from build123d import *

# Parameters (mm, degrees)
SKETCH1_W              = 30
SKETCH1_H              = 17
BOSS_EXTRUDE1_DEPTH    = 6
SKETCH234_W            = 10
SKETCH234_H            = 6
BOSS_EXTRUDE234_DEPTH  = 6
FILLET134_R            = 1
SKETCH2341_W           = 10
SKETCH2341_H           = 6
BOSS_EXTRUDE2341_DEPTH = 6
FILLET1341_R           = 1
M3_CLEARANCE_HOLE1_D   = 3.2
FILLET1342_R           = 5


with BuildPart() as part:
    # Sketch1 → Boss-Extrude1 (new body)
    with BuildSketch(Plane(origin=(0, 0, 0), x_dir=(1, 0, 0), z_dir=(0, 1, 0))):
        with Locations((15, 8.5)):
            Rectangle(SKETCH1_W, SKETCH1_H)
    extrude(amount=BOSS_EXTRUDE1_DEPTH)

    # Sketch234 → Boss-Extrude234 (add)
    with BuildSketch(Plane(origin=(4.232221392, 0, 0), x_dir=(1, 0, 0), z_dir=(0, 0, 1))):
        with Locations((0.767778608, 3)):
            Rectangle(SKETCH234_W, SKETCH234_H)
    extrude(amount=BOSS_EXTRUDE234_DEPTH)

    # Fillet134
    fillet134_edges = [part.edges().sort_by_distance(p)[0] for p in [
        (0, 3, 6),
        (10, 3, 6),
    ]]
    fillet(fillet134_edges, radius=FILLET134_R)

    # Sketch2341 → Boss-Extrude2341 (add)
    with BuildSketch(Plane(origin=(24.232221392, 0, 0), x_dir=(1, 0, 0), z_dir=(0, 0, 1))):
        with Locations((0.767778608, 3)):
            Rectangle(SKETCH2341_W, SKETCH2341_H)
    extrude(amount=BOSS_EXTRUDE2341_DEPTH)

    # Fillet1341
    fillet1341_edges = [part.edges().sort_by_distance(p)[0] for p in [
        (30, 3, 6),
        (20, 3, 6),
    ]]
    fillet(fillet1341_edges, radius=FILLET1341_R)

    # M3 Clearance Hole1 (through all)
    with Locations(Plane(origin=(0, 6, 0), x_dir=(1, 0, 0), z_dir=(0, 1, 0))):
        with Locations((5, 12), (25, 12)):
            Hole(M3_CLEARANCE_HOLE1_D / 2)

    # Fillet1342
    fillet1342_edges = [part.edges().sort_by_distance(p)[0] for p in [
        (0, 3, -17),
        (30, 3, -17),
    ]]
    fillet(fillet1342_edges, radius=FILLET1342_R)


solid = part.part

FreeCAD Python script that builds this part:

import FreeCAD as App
import Part
import Sketcher
from FreeCAD import Vector


def edges_at(feature, points):
    """Names of the edges that pass closest to the given points."""
    edges = feature.Shape.Edges
    near = lambda p: min(range(len(edges)), key=lambda i: edges[i].distToShape(Part.Vertex(*p))[0])
    return sorted({f"Edge{near(p) + 1}" for p in points})

doc = App.newDocument("Part")
params = doc.addObject("Spreadsheet::Sheet", "Params")
for row, (alias, value) in enumerate([
    ("sketch1_width", "30 mm"),
    ("sketch1_height", "17 mm"),
    ("pad1_length", "6 mm"),
    ("sketch2_width", "10 mm"),
    ("sketch2_height", "6 mm"),
    ("pad2_length", "6 mm"),
    ("fillet_radius", "1 mm"),
    ("sketch3_width", "10 mm"),
    ("sketch3_height", "6 mm"),
    ("pad3_length", "6 mm"),
    ("fillet2_radius", "1 mm"),
    ("sketch4_diameter", "3.2 mm"),
    ("hole_diameter", "3.2 mm"),
    ("fillet3_radius", "5 mm"),
], start=1):
    params.set(f"A{row}", alias)
    params.set(f"B{row}", "=" + value)
    params.setAlias(f"B{row}", alias)

body = doc.addObject("PartDesign::Body", "Body")

# Sketch on XZ plane
sketch1 = body.newObject("Sketcher::SketchObject", "Sketch")
sketch1.AttachmentSupport = (doc.getObject("XZ_Plane"), [""])
sketch1.MapMode = "FlatFace"
sketch1.addGeometry(Part.LineSegment(Vector(0, -17, 0), Vector(0, 0, 0)), False)
sketch1.addGeometry(Part.LineSegment(Vector(0, 0, 0), Vector(30, 0, 0)), False)
sketch1.addGeometry(Part.LineSegment(Vector(30, 0, 0), Vector(30, -17, 0)), False)
sketch1.addGeometry(Part.LineSegment(Vector(30, -17, 0), Vector(0, -17, 0)), False)
sketch1.addConstraint(Sketcher.Constraint("Coincident", 0, 2, 1, 1))
sketch1.addConstraint(Sketcher.Constraint("Coincident", 1, 2, 2, 1))
sketch1.addConstraint(Sketcher.Constraint("Coincident", 2, 2, 3, 1))
sketch1.addConstraint(Sketcher.Constraint("Coincident", 3, 2, 0, 1))
sketch1.addConstraint(Sketcher.Constraint("Vertical", 0))
sketch1.addConstraint(Sketcher.Constraint("Horizontal", 1))
sketch1.addConstraint(Sketcher.Constraint("Vertical", 2))
sketch1.addConstraint(Sketcher.Constraint("Horizontal", 3))
sketch1.addConstraint(Sketcher.Constraint("Coincident", 0, 2, -1, 1))
sketch1.addConstraint(Sketcher.Constraint("DistanceX", 1, 1, 1, 2, 30.0))
sketch1.addConstraint(Sketcher.Constraint("DistanceY", 0, 1, 0, 2, 17.0))
sketch1.setExpression("Constraints[9]", "Params.sketch1_width")
sketch1.setExpression("Constraints[10]", "Params.sketch1_height")
pad1 = body.newObject("PartDesign::Pad", "Pad")
pad1.Profile = sketch1
pad1.setExpression("Length", "Params.pad1_length")
pad1.Reversed = True

# Sketch on XY plane
sketch2 = body.newObject("Sketcher::SketchObject", "Sketch001")
sketch2.AttachmentSupport = (doc.getObject("XY_Plane"), [""])
sketch2.MapMode = "FlatFace"
sketch2.addGeometry(Part.LineSegment(Vector(0, 6, 0), Vector(0, 0, 0)), False)
sketch2.addGeometry(Part.LineSegment(Vector(0, 0, 0), Vector(10, 0, 0)), False)
sketch2.addGeometry(Part.LineSegment(Vector(10, 0, 0), Vector(10, 6, 0)), False)
sketch2.addGeometry(Part.LineSegment(Vector(10, 6, 0), Vector(0, 6, 0)), False)
sketch2.addConstraint(Sketcher.Constraint("Coincident", 0, 2, 1, 1))
sketch2.addConstraint(Sketcher.Constraint("Coincident", 1, 2, 2, 1))
sketch2.addConstraint(Sketcher.Constraint("Coincident", 2, 2, 3, 1))
sketch2.addConstraint(Sketcher.Constraint("Coincident", 3, 2, 0, 1))
sketch2.addConstraint(Sketcher.Constraint("Vertical", 0))
sketch2.addConstraint(Sketcher.Constraint("Horizontal", 1))
sketch2.addConstraint(Sketcher.Constraint("Vertical", 2))
sketch2.addConstraint(Sketcher.Constraint("Horizontal", 3))
sketch2.addConstraint(Sketcher.Constraint("Coincident", 0, 2, -1, 1))
sketch2.addConstraint(Sketcher.Constraint("DistanceX", 1, 1, 1, 2, 10.0))
sketch2.addConstraint(Sketcher.Constraint("DistanceY", 0, 2, 0, 1, 6.0))
sketch2.setExpression("Constraints[9]", "Params.sketch2_width")
sketch2.setExpression("Constraints[10]", "Params.sketch2_height")
pad2 = body.newObject("PartDesign::Pad", "Pad001")
pad2.Profile = sketch2
pad2.setExpression("Length", "Params.pad2_length")
doc.recompute()

fillet = body.newObject("PartDesign::Fillet", "Fillet")
fillet.Base = (pad2, edges_at(pad2, [(0, 3, 6), (10, 3, 6)]))
fillet.setExpression("Radius", "Params.fillet_radius")

# Sketch on XY plane
sketch3 = body.newObject("Sketcher::SketchObject", "Sketch002")
sketch3.AttachmentSupport = (doc.getObject("XY_Plane"), [""])
sketch3.MapMode = "FlatFace"
sketch3.addGeometry(Part.LineSegment(Vector(20, 6, 0), Vector(20, 0, 0)), False)
sketch3.addGeometry(Part.LineSegment(Vector(20, 0, 0), Vector(30, 0, 0)), False)
sketch3.addGeometry(Part.LineSegment(Vector(30, 0, 0), Vector(30, 6, 0)), False)
sketch3.addGeometry(Part.LineSegment(Vector(30, 6, 0), Vector(20, 6, 0)), False)
sketch3.addConstraint(Sketcher.Constraint("Coincident", 0, 2, 1, 1))
sketch3.addConstraint(Sketcher.Constraint("Coincident", 1, 2, 2, 1))
sketch3.addConstraint(Sketcher.Constraint("Coincident", 2, 2, 3, 1))
sketch3.addConstraint(Sketcher.Constraint("Coincident", 3, 2, 0, 1))
sketch3.addConstraint(Sketcher.Constraint("Vertical", 0))
sketch3.addConstraint(Sketcher.Constraint("Horizontal", 1))
sketch3.addConstraint(Sketcher.Constraint("Vertical", 2))
sketch3.addConstraint(Sketcher.Constraint("Horizontal", 3))
sketch3.addConstraint(Sketcher.Constraint("PointOnObject", 0, 2, -1))
sketch3.addConstraint(Sketcher.Constraint("DistanceX", 1, 1, 1, 2, 10.0))
sketch3.addConstraint(Sketcher.Constraint("DistanceY", 0, 2, 0, 1, 6.0))
sketch3.addConstraint(Sketcher.Constraint("DistanceX", -1, 1, 0, 2, 20.0))
sketch3.setExpression("Constraints[9]", "Params.sketch3_width")
sketch3.setExpression("Constraints[10]", "Params.sketch3_height")
pad3 = body.newObject("PartDesign::Pad", "Pad002")
pad3.Profile = sketch3
pad3.setExpression("Length", "Params.pad3_length")
doc.recompute()

fillet2 = body.newObject("PartDesign::Fillet", "Fillet001")
fillet2.Base = (pad3, edges_at(pad3, [(30, 3, 6), (20, 3, 6)]))
fillet2.setExpression("Radius", "Params.fillet2_radius")

# Sketch on XZ plane
sketch4 = body.newObject("Sketcher::SketchObject", "Sketch003")
sketch4.AttachmentSupport = (doc.getObject("XZ_Plane"), [""])
sketch4.MapMode = "FlatFace"
sketch4.AttachmentOffset = App.Placement(Vector(0, 0, -6), App.Rotation())
sketch4.addGeometry(Part.Circle(Vector(5, -12, 0), Vector(0, 0, 1), 1.6), False)
sketch4.addGeometry(Part.Circle(Vector(25, -12, 0), Vector(0, 0, 1), 1.6), False)
sketch4.addConstraint(Sketcher.Constraint("Equal", 0, 1))
sketch4.addConstraint(Sketcher.Constraint("Horizontal", 0, 3, 1, 3))
sketch4.addConstraint(Sketcher.Constraint("Diameter", 0, 3.2))
sketch4.addConstraint(Sketcher.Constraint("DistanceX", -1, 1, 0, 3, 5.0))
sketch4.addConstraint(Sketcher.Constraint("DistanceY", 0, 3, -1, 1, 12.0))
sketch4.addConstraint(Sketcher.Constraint("DistanceX", -1, 1, 1, 3, 25.0))
sketch4.setExpression("Constraints[2]", "Params.sketch4_diameter")
doc.recompute()
hole = body.newObject("PartDesign::Hole", "Hole")
hole.Profile = sketch4
hole.ThreadType = "None"
hole.setExpression("Diameter", "Params.hole_diameter")
hole.DepthType = "ThroughAll"
hole.Reversed = True
doc.recompute()

fillet3 = body.newObject("PartDesign::Fillet", "Fillet002")
fillet3.Base = (hole, edges_at(hole, [(0, 3, -17), (30, 3, -17)]))
fillet3.setExpression("Radius", "Params.fillet3_radius")

doc.recompute()
